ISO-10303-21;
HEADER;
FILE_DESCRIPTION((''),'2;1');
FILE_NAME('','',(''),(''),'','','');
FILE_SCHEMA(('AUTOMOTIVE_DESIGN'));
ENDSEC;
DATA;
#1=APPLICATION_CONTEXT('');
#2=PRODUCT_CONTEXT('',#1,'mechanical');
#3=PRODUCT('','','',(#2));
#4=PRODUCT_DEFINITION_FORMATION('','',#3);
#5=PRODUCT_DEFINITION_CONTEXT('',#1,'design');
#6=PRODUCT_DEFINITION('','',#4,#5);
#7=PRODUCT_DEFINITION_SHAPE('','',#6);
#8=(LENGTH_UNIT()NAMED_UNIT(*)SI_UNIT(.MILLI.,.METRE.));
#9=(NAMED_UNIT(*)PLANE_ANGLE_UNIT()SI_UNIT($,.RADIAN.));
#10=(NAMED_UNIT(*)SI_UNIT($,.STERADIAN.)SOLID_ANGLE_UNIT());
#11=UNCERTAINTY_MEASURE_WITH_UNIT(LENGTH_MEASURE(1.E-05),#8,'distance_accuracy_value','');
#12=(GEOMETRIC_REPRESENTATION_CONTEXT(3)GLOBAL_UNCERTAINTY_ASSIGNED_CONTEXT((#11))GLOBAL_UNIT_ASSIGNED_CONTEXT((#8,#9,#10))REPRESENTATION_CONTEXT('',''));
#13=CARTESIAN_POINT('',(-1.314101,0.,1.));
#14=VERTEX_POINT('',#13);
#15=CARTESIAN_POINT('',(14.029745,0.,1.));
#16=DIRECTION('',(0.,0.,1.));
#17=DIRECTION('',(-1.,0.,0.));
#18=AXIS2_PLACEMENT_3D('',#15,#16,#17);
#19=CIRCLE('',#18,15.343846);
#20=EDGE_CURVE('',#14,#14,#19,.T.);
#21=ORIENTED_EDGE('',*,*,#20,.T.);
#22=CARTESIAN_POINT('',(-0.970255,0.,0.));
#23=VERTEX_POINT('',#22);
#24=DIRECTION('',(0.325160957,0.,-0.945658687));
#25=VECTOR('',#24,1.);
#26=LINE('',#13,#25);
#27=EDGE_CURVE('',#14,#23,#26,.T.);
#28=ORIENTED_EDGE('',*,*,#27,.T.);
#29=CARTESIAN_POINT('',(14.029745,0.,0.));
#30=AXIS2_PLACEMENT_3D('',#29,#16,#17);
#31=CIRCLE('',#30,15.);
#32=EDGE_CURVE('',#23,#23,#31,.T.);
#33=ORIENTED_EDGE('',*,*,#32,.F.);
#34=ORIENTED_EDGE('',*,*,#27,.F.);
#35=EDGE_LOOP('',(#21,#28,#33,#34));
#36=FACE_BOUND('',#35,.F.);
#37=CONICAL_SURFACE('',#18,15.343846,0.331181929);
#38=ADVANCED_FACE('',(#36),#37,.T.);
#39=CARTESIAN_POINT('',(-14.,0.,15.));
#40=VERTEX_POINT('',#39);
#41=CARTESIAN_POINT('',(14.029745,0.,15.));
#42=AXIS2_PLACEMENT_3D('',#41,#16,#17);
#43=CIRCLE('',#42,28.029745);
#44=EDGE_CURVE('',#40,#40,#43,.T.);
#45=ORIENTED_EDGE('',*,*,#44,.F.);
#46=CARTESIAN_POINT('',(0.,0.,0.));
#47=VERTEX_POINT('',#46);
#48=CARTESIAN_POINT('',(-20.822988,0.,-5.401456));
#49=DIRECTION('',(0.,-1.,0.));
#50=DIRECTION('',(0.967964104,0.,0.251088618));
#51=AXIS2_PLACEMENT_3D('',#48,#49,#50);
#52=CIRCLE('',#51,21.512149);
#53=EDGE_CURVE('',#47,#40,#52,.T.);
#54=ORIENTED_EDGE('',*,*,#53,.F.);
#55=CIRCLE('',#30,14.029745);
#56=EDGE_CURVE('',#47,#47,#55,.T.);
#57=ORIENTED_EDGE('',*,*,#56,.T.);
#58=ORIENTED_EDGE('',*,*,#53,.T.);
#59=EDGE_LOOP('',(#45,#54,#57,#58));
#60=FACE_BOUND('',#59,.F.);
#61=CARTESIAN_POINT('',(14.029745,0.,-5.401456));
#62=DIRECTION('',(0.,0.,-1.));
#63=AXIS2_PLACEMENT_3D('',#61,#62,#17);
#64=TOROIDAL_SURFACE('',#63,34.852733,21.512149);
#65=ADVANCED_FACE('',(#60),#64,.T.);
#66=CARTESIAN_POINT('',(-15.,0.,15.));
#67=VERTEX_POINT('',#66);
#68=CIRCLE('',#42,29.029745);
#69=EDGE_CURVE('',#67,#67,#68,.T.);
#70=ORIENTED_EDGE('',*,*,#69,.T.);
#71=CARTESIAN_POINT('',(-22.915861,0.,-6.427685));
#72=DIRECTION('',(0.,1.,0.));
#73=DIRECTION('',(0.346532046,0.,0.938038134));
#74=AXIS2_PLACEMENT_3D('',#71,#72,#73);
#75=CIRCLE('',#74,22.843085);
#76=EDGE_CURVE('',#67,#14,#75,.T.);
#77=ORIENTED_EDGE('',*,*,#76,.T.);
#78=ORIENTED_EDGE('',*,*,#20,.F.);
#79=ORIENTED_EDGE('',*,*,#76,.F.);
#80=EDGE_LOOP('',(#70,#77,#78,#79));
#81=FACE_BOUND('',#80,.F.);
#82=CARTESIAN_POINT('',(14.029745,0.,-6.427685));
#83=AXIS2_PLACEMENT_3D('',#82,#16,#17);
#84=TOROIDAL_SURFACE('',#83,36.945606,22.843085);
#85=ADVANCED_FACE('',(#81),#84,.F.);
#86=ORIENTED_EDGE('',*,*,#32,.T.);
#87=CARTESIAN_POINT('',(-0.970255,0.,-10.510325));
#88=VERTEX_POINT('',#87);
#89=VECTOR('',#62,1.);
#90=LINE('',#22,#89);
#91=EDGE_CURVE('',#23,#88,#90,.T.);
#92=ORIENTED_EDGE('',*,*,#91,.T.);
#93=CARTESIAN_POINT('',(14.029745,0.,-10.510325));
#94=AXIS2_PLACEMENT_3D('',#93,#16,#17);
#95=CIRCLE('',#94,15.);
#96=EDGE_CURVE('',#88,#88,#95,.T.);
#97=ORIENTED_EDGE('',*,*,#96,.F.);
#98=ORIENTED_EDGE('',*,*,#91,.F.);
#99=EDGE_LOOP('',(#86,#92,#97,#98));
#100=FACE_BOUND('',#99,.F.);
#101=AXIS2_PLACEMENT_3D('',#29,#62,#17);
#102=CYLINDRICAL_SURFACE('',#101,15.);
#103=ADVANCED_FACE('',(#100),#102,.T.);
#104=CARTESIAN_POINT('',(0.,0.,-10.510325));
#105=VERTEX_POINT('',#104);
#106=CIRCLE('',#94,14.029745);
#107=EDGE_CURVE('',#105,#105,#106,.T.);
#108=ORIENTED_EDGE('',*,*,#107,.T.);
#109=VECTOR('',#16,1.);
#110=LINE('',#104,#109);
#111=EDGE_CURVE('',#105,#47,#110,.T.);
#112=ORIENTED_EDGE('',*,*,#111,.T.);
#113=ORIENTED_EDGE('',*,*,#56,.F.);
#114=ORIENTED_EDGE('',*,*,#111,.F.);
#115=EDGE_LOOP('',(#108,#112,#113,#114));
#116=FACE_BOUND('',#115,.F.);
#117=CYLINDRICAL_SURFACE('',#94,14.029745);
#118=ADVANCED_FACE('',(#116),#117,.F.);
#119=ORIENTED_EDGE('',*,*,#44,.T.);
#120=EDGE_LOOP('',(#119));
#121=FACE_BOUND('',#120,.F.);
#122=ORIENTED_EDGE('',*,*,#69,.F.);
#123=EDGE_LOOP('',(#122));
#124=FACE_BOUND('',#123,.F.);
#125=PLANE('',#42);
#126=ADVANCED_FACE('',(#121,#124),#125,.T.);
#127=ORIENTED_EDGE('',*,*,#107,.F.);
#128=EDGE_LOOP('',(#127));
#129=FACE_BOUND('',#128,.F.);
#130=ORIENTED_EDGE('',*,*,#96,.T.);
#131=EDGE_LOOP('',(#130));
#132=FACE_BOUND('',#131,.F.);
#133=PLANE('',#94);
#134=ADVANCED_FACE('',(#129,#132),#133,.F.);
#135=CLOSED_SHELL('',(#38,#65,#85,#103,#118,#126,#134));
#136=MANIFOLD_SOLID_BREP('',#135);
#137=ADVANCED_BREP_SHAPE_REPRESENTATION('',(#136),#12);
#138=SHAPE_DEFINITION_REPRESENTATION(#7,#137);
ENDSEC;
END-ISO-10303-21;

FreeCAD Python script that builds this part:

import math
import FreeCAD as App
import Part
import Sketcher

V = App.Vector
Q = App.Units.Quantity

doc = App.newDocument("Part")
body = doc.addObject("PartDesign::Body", "Body")

sketch1 = body.newObject("Sketcher::SketchObject", "Sketch")
sketch1.AttachmentSupport = (doc.getObject("XZ_Plane"), [""])
sketch1.MapMode = "FlatFace"
sketch1.addGeometry([
    Part.ArcOfCircle(Part.Circle(V(-20.8, -5.4, 0), V(0, 0, 1), 21.5), math.radians(15), math.radians(72)),
    Part.LineSegment(V(-14, 15, 0), V(-15, 15, 0)),
    Part.ArcOfCircle(Part.Circle(V(-22.9, -6.4, 0), V(0, 0, 1), 22.8), math.radians(19), math.radians(70)),
    Part.LineSegment(V(-1.3, 1, 0), V(-1, 0, 0)),
    Part.LineSegment(V(-1, 0, 0), V(-1, -10.5, 0)),
    Part.LineSegment(V(-1, -10.5, 0), V(0, -10.5, 0)),
    Part.LineSegment(V(0, -10.5, 0), V(0, 0, 0)),
], False)
sketch1.addGeometry(Part.LineSegment(V(14, -10.5, 0), V(14, 15, 0)), True)
sketch1.addConstraint([
    Sketcher.Constraint("Coincident", 0, 2, 1, 1),
    Sketcher.Constraint("Coincident", 1, 2, 2, 2),
    Sketcher.Constraint("Tangent", 2, 1, 3, 1),
    Sketcher.Constraint("Coincident", 3, 2, 4, 1),
    Sketcher.Constraint("Coincident", 4, 2, 5, 1),
    Sketcher.Constraint("Coincident", 5, 2, 6, 1),
    Sketcher.Constraint("Coincident", 6, 2, 0, 1),
    Sketcher.Constraint("Horizontal", 1),
    Sketcher.Constraint("Vertical", 4),
    Sketcher.Constraint("Horizontal", 5),
    Sketcher.Constraint("Vertical", 6),
    Sketcher.Constraint("Vertical", 7),
    Sketcher.Constraint("Coincident", 6, 2, -1, 1),
    Sketcher.Constraint("PointOnObject", 3, 2, -1),
    Sketcher.Constraint("Horizontal", 5, 2, 7, 1),
    Sketcher.Constraint("Horizontal", 1, 2, 7, 2),
    Sketcher.Constraint("DistanceX", 1, 2, 1, 1, Q("1 mm")),
    Sketcher.Constraint("DistanceX", 0, 2, -1, 1, Q("14 mm")),
    Sketcher.Constraint("DistanceY", -1, 1, 0, 2, Q("15 mm")),
    Sketcher.Constraint("DistanceY", -1, 1, 2, 1, Q("1 mm")),
    Sketcher.Constraint("DistanceX", 4, 2, 7, 1, Q("15 mm")),
    Sketcher.Constraint("Radius", 0, Q("21.512149 mm")),
    Sketcher.Constraint("Radius", 2, Q("22.843085 mm")),
    Sketcher.Constraint("DistanceX", 2, 1, -1, 1, Q("1.314101 mm")),
    Sketcher.Constraint("DistanceY", 4, 2, 4, 1, Q("10.510325 mm")),
])
revolution = body.newObject("PartDesign::Revolution", "Revolution")
revolution.Profile = sketch1
revolution.ReferenceAxis = (sketch1, ["Axis0"])
revolution.Angle = 360

doc.recompute()
